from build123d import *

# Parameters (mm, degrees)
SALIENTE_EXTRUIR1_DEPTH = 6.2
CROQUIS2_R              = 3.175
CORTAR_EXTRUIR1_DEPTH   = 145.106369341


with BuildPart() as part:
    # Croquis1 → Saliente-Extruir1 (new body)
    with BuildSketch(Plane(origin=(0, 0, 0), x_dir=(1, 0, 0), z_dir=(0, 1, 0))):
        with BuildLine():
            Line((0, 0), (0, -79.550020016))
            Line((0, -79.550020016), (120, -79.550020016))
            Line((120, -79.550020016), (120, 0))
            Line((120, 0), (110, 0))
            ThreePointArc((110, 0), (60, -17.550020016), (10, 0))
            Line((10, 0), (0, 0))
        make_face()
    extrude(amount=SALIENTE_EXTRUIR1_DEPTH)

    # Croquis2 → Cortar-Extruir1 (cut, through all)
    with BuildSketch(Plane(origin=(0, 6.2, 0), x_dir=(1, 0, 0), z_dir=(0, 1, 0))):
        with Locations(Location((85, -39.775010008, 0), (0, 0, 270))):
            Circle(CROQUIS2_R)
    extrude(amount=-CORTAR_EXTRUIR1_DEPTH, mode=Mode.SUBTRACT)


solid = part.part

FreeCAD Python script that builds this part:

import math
import FreeCAD as App
import Part
import Sketcher

V = App.Vector
Q = App.Units.Quantity

doc = App.newDocument("Part")
params = doc.addObject("Spreadsheet::Sheet", "Params")
for row, (alias, value) in enumerate([
    ("sketch1_radius", "80 mm"),
    ("sketch1_width", "120 mm"),
    ("sketch1_width2", "10 mm"),
    ("pad1_length", "6.2 mm"),
    ("sketch2_diameter", "6.35 mm"),
], start=1):
    params.set(f"A{row}", alias)
    params.set(f"B{row}", "=" + value)
    params.setAlias(f"B{row}", alias)

body = doc.addObject("PartDesign::Body", "Body")

# Sketch on XZ plane
sketch1 = body.newObject("Sketcher::SketchObject", "Sketch")
sketch1.AttachmentSupport = (doc.getObject("XZ_Plane"), [""])
sketch1.MapMode = "FlatFace"
sketch1.addGeometry([
    Part.LineSegment(V(0, 0, 0), V(0, 80, 0)),  # 0
    Part.LineSegment(V(0, 80, 0), V(120, 80, 0)),  # 1
    Part.LineSegment(V(120, 80, 0), V(120, 0, 0)),  # 2
    Part.LineSegment(V(120, 0, 0), V(110, 0, 0)),  # 3
    Part.ArcOfCircle(Part.Circle(V(60, -62, 0), V(0, 0, 1), 80), math.radians(51), math.radians(129)),  # 4
    Part.LineSegment(V(10, 0, 0), V(0, 0, 0)),  # 5
], False)
sketch1.addConstraint([
    Sketcher.Constraint("Coincident", 0, 2, 1, 1),
    Sketcher.Constraint("Coincident", 1, 2, 2, 1),
    Sketcher.Constraint("Coincident", 2, 2, 3, 1),
    Sketcher.Constraint("Coincident", 3, 2, 4, 1),
    Sketcher.Constraint("Coincident", 4, 2, 5, 1),
    Sketcher.Constraint("Coincident", 5, 2, 0, 1),
    Sketcher.Constraint("Vertical", 0),
    Sketcher.Constraint("Horizontal", 1),
    Sketcher.Constraint("Vertical", 2),
    Sketcher.Constraint("Horizontal", 3),
    Sketcher.Constraint("Horizontal", 5),
    Sketcher.Constraint("Coincident", 5, 2, -1, 1),
    Sketcher.Constraint("PointOnObject", 2, 2, -1),
    Sketcher.Constraint("Equal", 3, 5),
    Sketcher.Constraint("Radius", 4, Q("80 mm")),
    Sketcher.Constraint("DistanceX", 1, 1, 1, 2, Q("120 mm")),
    Sketcher.Constraint("DistanceX", 3, 2, 3, 1, Q("10 mm")),
    Sketcher.Constraint("DistanceY", 4, 3, 0, 2, Q("142 mm")),
])
sketch1.setExpression("Constraints[14]", "Params.sketch1_radius")
sketch1.setExpression("Constraints[15]", "Params.sketch1_width")
sketch1.setExpression("Constraints[16]", "Params.sketch1_width2")
pad1 = body.newObject("PartDesign::Pad", "Pad")
pad1.Profile = sketch1
pad1.setExpression("Length", "Params.pad1_length")
pad1.Reversed = True

# Sketch on XZ plane
sketch2 = body.newObject("Sketcher::SketchObject", "Sketch001")
sketch2.AttachmentSupport = (doc.getObject("XZ_Plane"), [""])
sketch2.MapMode = "FlatFace"
sketch2.AttachmentOffset = App.Placement(V(0, 0, -6.2), App.Rotation())
sketch2.addGeometry(Part.Circle(V(85, 39.8, 0), V(0, 0, 1), 3.2), False)
sketch2.addConstraint([
    Sketcher.Constraint("Diameter", 0, Q("6.35 mm")),
    Sketcher.Constraint("DistanceX", -1, 1, 0, 3, Q("85 mm")),
    Sketcher.Constraint("DistanceY", -1, 1, 0, 3, Q("39.77501 mm")),
])
sketch2.setExpression("Constraints[0]", "Params.sketch2_diameter")
pocket1 = body.newObject("PartDesign::Pocket", "Pocket")
pocket1.Profile = sketch2
pocket1.Type = "ThroughAll"
pocket1.Reversed = True

doc.recompute()
